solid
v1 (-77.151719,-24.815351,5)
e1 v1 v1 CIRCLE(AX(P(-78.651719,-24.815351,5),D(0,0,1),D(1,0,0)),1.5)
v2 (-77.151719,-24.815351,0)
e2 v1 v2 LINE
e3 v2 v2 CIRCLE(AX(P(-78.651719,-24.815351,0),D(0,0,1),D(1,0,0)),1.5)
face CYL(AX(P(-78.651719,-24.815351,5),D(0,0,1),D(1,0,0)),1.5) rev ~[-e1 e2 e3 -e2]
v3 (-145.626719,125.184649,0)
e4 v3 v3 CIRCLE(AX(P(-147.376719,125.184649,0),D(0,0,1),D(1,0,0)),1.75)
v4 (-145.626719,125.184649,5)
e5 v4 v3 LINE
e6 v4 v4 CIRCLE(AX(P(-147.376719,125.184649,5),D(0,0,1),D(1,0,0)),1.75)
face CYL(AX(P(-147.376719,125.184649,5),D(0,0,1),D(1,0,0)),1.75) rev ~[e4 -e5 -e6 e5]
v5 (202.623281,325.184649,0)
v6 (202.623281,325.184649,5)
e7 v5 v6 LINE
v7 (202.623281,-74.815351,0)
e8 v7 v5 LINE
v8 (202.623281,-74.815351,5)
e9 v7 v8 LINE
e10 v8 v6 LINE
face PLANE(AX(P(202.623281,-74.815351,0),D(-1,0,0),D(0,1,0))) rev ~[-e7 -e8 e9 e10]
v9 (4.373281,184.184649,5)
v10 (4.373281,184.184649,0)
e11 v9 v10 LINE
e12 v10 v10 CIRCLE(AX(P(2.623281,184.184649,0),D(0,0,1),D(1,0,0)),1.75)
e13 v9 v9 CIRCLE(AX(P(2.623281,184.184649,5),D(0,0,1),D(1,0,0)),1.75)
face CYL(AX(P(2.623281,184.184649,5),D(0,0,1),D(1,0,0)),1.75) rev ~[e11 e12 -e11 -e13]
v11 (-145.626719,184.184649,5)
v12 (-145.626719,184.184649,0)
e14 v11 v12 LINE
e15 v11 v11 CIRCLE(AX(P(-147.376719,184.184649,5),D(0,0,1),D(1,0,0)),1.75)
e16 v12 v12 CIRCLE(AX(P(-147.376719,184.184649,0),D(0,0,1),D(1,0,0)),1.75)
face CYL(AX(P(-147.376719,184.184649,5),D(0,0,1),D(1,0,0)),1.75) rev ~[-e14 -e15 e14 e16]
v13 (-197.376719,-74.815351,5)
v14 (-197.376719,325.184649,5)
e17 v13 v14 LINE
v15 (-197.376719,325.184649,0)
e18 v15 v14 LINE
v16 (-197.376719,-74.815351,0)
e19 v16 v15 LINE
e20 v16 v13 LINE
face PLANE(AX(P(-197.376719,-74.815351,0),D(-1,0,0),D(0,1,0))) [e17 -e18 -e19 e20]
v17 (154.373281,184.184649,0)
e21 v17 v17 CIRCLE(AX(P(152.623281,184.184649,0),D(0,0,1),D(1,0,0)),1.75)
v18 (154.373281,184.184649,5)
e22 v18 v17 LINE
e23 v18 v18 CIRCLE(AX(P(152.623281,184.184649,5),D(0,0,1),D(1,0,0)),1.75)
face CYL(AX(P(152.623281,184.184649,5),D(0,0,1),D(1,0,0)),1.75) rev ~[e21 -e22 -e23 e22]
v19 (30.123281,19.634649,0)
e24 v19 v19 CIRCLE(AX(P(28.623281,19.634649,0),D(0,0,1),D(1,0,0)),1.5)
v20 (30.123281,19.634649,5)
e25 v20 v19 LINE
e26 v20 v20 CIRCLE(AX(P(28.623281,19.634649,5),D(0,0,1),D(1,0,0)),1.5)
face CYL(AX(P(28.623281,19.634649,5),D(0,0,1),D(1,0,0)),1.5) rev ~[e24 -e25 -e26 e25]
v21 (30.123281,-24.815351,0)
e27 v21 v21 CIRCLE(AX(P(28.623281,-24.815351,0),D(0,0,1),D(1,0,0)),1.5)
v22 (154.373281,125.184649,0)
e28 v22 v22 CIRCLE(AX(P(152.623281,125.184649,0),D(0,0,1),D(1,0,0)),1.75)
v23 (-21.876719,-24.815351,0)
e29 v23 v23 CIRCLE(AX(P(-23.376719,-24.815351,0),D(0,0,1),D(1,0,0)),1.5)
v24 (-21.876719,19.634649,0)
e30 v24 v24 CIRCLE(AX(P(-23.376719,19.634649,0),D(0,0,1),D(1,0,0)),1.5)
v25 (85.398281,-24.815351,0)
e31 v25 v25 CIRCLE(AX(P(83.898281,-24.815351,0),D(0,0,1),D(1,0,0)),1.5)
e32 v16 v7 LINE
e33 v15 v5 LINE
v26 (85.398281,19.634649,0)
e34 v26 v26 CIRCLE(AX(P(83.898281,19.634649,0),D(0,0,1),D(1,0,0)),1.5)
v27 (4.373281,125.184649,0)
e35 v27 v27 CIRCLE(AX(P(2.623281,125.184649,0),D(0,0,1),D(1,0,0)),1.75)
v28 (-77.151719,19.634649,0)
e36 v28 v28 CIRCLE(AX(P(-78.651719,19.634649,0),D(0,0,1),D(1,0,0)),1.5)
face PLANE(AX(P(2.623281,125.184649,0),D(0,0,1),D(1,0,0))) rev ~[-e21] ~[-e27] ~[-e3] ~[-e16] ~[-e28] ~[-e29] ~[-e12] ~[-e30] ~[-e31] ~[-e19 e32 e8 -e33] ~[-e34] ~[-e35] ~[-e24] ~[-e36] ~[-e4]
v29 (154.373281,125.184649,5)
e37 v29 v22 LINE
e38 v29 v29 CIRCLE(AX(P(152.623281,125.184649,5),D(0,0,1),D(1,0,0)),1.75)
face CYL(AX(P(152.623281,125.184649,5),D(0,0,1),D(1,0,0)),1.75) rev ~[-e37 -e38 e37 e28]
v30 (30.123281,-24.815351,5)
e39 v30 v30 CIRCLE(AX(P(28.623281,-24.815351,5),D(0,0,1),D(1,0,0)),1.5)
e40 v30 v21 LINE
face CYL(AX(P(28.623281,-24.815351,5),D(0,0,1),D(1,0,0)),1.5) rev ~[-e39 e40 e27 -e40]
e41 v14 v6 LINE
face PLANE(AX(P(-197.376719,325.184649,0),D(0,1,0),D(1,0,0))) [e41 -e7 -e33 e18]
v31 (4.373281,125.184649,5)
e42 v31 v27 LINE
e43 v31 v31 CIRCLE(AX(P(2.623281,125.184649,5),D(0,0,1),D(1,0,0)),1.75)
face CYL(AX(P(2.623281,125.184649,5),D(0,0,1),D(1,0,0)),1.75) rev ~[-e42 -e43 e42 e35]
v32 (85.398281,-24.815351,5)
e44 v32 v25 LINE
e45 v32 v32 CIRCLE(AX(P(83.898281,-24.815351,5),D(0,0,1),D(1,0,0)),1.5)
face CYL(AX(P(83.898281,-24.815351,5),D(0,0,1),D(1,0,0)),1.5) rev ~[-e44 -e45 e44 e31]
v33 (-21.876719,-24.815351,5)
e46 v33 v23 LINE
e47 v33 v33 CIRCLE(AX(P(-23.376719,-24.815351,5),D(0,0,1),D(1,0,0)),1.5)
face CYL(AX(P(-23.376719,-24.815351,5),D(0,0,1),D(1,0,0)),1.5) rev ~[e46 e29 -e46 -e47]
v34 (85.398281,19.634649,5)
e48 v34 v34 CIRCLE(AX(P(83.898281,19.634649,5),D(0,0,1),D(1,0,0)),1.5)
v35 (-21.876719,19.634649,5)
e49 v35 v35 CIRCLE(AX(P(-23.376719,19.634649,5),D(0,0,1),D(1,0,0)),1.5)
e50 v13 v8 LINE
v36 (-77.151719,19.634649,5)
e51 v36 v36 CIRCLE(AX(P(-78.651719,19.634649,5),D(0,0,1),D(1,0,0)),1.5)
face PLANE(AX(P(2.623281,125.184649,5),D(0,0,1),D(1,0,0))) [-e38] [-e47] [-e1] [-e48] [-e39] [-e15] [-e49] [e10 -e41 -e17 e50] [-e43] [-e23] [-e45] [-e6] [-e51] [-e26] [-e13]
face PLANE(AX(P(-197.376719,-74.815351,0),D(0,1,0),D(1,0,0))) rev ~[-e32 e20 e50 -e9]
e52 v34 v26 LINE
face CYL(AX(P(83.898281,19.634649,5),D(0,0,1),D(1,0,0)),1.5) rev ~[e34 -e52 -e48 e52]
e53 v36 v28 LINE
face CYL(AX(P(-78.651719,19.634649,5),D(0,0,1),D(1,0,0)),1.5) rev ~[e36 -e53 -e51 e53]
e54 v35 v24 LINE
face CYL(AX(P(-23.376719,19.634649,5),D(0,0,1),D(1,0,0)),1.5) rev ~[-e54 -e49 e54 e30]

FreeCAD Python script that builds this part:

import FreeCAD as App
import Part
import Sketcher
from FreeCAD import Vector
Q = App.Units.Quantity

doc = App.newDocument("Part")
params = doc.addObject("Spreadsheet::Sheet", "Params")
for row, (alias, value) in enumerate([
    ("sketch1_width", "400 mm"),
    ("pad1_length", "5 mm"),
    ("sketch2_diameter", "3.5 mm"),
    ("sketch3_diameter", "3 mm"),
    ("sketch4_diameter", "3 mm"),
], start=1):
    params.set(f"A{row}", alias)
    params.set(f"B{row}", "=" + value)
    params.setAlias(f"B{row}", alias)

body = doc.addObject("PartDesign::Body", "Body")

sketch1 = body.newObject("Sketcher::SketchObject", "Sketch")
sketch1.AttachmentSupport = (doc.getObject("XY_Plane"), [""])
sketch1.MapMode = "FlatFace"
sketch1.addGeometry([
    Part.LineSegment(Vector(-197, 325, 0), Vector(-197, -75, 0)),
    Part.LineSegment(Vector(-197, -75, 0), Vector(203, -75, 0)),
    Part.LineSegment(Vector(203, -75, 0), Vector(203, 325, 0)),
    Part.LineSegment(Vector(203, 325, 0), Vector(-197, 325, 0)),
], False)
sketch1.addConstraint([
    Sketcher.Constraint("Coincident", 0, 2, 1, 1),
    Sketcher.Constraint("Coincident", 1, 2, 2, 1),
    Sketcher.Constraint("Coincident", 2, 2, 3, 1),
    Sketcher.Constraint("Coincident", 3, 2, 0, 1),
    Sketcher.Constraint("Vertical", 0),
    Sketcher.Constraint("Horizontal", 1),
    Sketcher.Constraint("Vertical", 2),
    Sketcher.Constraint("Horizontal", 3),
    Sketcher.Constraint("Equal", 3, 0),
    Sketcher.Constraint("DistanceX", 1, 1, 1, 2, Q("400 mm")),
    Sketcher.Constraint("DistanceX", 0, 2, -1, 1, Q("197.376719 mm")),
    Sketcher.Constraint("DistanceY", 0, 2, -1, 1, Q("74.815351 mm")),
])
sketch1.setExpression("Constraints[9]", "Params.sketch1_width")
pad1 = body.newObject("PartDesign::Pad", "Pad")
pad1.Profile = sketch1
pad1.setExpression("Length", "Params.pad1_length")

sketch2 = body.newObject("Sketcher::SketchObject", "Sketch001")
sketch2.AttachmentSupport = (doc.getObject("XY_Plane"), [""])
sketch2.MapMode = "FlatFace"
sketch2.AttachmentOffset = App.Placement(Vector(0, 0, 5), App.Rotation())
sketch2.addGeometry([
    Part.Circle(Vector(-147.4, 125.2, 0), Vector(0, 0, 1), 1.8),
    Part.Circle(Vector(-147.4, 184.2, 0), Vector(0, 0, 1), 1.8),
    Part.Circle(Vector(2.6, 125.2, 0), Vector(0, 0, 1), 1.8),
    Part.Circle(Vector(2.6, 184.2, 0), Vector(0, 0, 1), 1.8),
    Part.Circle(Vector(152.6, 125.2, 0), Vector(0, 0, 1), 1.8),
    Part.Circle(Vector(152.6, 184.2, 0), Vector(0, 0, 1), 1.8),
], False)
sketch2.addConstraint([
    Sketcher.Constraint("Equal", 0, 1),
    Sketcher.Constraint("Equal", 1, 2),
    Sketcher.Constraint("Equal", 2, 3),
    Sketcher.Constraint("Equal", 3, 4),
    Sketcher.Constraint("Equal", 4, 5),
    Sketcher.Constraint("Horizontal", 0, 3, 2, 3),
    Sketcher.Constraint("Horizontal", 1, 3, 3, 3),
    Sketcher.Constraint("Horizontal", 2, 3, 4, 3),
    Sketcher.Constraint("Horizontal", 3, 3, 5, 3),
    Sketcher.Constraint("Vertical", 0, 3, 1, 3),
    Sketcher.Constraint("Vertical", 2, 3, 3, 3),
    Sketcher.Constraint("Vertical", 4, 3, 5, 3),
    Sketcher.Constraint("Diameter", 0, Q("3.5 mm")),
    Sketcher.Constraint("DistanceY", 0, 3, 1, 3, Q("59 mm")),
    Sketcher.Constraint("DistanceX", 0, 3, 2, 3, Q("150 mm")),
    Sketcher.Constraint("DistanceX", 2, 3, 4, 3, Q("150 mm")),
    Sketcher.Constraint("DistanceX", 0, 3, -1, 1, Q("147.376719 mm")),
    Sketcher.Constraint("DistanceY", -1, 1, 0, 3, Q("125.184649 mm")),
])
sketch2.setExpression("Constraints[12]", "Params.sketch2_diameter")
pocket1 = body.newObject("PartDesign::Pocket", "Pocket")
pocket1.Profile = sketch2
pocket1.Type = "ThroughAll"

sketch3 = body.newObject("Sketcher::SketchObject", "Sketch002")
sketch3.AttachmentSupport = (doc.getObject("XY_Plane"), [""])
sketch3.MapMode = "FlatFace"
sketch3.AttachmentOffset = App.Placement(Vector(0, 0, 5), App.Rotation())
sketch3.addGeometry([
    Part.Circle(Vector(-23.4, -24.8, 0), Vector(0, 0, 1), 1.5),
    Part.Circle(Vector(-23.4, 19.6, 0), Vector(0, 0, 1), 1.5),
    Part.Circle(Vector(28.6, -24.8, 0), Vector(0, 0, 1), 1.5),
    Part.Circle(Vector(28.6, 19.6, 0), Vector(0, 0, 1), 1.5),
], False)
sketch3.addConstraint([
    Sketcher.Constraint("Equal", 0, 1),
    Sketcher.Constraint("Equal", 1, 2),
    Sketcher.Constraint("Equal", 2, 3),
    Sketcher.Constraint("Horizontal", 0, 3, 2, 3),
    Sketcher.Constraint("Horizontal", 1, 3, 3, 3),
    Sketcher.Constraint("Vertical", 0, 3, 1, 3),
    Sketcher.Constraint("Vertical", 2, 3, 3, 3),
    Sketcher.Constraint("Diameter", 0, Q("3 mm")),
    Sketcher.Constraint("DistanceX", 0, 3, 2, 3, Q("52 mm")),
    Sketcher.Constraint("DistanceY", 0, 3, 1, 3, Q("44.45 mm")),
    Sketcher.Constraint("DistanceX", 0, 3, -1, 1, Q("23.376719 mm")),
    Sketcher.Constraint("DistanceY", 0, 3, -1, 1, Q("24.815351 mm")),
])
sketch3.setExpression("Constraints[7]", "Params.sketch3_diameter")
pocket2 = body.newObject("PartDesign::Pocket", "Pocket001")
pocket2.Profile = sketch3
pocket2.Type = "ThroughAll"

sketch4 = body.newObject("Sketcher::SketchObject", "Sketch003")
sketch4.AttachmentSupport = (doc.getObject("XY_Plane"), [""])
sketch4.MapMode = "FlatFace"
sketch4.AttachmentOffset = App.Placement(Vector(0, 0, 5), App.Rotation())
sketch4.addGeometry([
    Part.Circle(Vector(-78.7, -24.8, 0), Vector(0, 0, 1), 1.5),
    Part.Circle(Vector(-78.7, 19.6, 0), Vector(0, 0, 1), 1.5),
    Part.Circle(Vector(83.9, -24.8, 0), Vector(0, 0, 1), 1.5),
    Part.Circle(Vector(83.9, 19.6, 0), Vector(0, 0, 1), 1.5),
], False)
sketch4.addConstraint([
    Sketcher.Constraint("Equal", 0, 1),
    Sketcher.Constraint("Equal", 1, 2),
    Sketcher.Constraint("Equal", 2, 3),
    Sketcher.Constraint("Horizontal", 0, 3, 2, 3),
    Sketcher.Constraint("Horizontal", 1, 3, 3, 3),
    Sketcher.Constraint("Vertical", 0, 3, 1, 3),
    Sketcher.Constraint("Vertical", 2, 3, 3, 3),
    Sketcher.Constraint("Diameter", 0, Q("3 mm")),
    Sketcher.Constraint("DistanceY", 0, 3, 1, 3, Q("44.45 mm")),
    Sketcher.Constraint("DistanceX", 0, 3, 2, 3, Q("162.55 mm")),
    Sketcher.Constraint("DistanceX", 0, 3, -1, 1, Q("78.651719 mm")),
    Sketcher.Constraint("DistanceY", 0, 3, -1, 1, Q("24.815351 mm")),
])
sketch4.setExpression("Constraints[7]", "Params.sketch4_diameter")
pocket3 = body.newObject("PartDesign::Pocket", "Pocket002")
pocket3.Profile = sketch4
pocket3.Type = "ThroughAll"

doc.recompute()
